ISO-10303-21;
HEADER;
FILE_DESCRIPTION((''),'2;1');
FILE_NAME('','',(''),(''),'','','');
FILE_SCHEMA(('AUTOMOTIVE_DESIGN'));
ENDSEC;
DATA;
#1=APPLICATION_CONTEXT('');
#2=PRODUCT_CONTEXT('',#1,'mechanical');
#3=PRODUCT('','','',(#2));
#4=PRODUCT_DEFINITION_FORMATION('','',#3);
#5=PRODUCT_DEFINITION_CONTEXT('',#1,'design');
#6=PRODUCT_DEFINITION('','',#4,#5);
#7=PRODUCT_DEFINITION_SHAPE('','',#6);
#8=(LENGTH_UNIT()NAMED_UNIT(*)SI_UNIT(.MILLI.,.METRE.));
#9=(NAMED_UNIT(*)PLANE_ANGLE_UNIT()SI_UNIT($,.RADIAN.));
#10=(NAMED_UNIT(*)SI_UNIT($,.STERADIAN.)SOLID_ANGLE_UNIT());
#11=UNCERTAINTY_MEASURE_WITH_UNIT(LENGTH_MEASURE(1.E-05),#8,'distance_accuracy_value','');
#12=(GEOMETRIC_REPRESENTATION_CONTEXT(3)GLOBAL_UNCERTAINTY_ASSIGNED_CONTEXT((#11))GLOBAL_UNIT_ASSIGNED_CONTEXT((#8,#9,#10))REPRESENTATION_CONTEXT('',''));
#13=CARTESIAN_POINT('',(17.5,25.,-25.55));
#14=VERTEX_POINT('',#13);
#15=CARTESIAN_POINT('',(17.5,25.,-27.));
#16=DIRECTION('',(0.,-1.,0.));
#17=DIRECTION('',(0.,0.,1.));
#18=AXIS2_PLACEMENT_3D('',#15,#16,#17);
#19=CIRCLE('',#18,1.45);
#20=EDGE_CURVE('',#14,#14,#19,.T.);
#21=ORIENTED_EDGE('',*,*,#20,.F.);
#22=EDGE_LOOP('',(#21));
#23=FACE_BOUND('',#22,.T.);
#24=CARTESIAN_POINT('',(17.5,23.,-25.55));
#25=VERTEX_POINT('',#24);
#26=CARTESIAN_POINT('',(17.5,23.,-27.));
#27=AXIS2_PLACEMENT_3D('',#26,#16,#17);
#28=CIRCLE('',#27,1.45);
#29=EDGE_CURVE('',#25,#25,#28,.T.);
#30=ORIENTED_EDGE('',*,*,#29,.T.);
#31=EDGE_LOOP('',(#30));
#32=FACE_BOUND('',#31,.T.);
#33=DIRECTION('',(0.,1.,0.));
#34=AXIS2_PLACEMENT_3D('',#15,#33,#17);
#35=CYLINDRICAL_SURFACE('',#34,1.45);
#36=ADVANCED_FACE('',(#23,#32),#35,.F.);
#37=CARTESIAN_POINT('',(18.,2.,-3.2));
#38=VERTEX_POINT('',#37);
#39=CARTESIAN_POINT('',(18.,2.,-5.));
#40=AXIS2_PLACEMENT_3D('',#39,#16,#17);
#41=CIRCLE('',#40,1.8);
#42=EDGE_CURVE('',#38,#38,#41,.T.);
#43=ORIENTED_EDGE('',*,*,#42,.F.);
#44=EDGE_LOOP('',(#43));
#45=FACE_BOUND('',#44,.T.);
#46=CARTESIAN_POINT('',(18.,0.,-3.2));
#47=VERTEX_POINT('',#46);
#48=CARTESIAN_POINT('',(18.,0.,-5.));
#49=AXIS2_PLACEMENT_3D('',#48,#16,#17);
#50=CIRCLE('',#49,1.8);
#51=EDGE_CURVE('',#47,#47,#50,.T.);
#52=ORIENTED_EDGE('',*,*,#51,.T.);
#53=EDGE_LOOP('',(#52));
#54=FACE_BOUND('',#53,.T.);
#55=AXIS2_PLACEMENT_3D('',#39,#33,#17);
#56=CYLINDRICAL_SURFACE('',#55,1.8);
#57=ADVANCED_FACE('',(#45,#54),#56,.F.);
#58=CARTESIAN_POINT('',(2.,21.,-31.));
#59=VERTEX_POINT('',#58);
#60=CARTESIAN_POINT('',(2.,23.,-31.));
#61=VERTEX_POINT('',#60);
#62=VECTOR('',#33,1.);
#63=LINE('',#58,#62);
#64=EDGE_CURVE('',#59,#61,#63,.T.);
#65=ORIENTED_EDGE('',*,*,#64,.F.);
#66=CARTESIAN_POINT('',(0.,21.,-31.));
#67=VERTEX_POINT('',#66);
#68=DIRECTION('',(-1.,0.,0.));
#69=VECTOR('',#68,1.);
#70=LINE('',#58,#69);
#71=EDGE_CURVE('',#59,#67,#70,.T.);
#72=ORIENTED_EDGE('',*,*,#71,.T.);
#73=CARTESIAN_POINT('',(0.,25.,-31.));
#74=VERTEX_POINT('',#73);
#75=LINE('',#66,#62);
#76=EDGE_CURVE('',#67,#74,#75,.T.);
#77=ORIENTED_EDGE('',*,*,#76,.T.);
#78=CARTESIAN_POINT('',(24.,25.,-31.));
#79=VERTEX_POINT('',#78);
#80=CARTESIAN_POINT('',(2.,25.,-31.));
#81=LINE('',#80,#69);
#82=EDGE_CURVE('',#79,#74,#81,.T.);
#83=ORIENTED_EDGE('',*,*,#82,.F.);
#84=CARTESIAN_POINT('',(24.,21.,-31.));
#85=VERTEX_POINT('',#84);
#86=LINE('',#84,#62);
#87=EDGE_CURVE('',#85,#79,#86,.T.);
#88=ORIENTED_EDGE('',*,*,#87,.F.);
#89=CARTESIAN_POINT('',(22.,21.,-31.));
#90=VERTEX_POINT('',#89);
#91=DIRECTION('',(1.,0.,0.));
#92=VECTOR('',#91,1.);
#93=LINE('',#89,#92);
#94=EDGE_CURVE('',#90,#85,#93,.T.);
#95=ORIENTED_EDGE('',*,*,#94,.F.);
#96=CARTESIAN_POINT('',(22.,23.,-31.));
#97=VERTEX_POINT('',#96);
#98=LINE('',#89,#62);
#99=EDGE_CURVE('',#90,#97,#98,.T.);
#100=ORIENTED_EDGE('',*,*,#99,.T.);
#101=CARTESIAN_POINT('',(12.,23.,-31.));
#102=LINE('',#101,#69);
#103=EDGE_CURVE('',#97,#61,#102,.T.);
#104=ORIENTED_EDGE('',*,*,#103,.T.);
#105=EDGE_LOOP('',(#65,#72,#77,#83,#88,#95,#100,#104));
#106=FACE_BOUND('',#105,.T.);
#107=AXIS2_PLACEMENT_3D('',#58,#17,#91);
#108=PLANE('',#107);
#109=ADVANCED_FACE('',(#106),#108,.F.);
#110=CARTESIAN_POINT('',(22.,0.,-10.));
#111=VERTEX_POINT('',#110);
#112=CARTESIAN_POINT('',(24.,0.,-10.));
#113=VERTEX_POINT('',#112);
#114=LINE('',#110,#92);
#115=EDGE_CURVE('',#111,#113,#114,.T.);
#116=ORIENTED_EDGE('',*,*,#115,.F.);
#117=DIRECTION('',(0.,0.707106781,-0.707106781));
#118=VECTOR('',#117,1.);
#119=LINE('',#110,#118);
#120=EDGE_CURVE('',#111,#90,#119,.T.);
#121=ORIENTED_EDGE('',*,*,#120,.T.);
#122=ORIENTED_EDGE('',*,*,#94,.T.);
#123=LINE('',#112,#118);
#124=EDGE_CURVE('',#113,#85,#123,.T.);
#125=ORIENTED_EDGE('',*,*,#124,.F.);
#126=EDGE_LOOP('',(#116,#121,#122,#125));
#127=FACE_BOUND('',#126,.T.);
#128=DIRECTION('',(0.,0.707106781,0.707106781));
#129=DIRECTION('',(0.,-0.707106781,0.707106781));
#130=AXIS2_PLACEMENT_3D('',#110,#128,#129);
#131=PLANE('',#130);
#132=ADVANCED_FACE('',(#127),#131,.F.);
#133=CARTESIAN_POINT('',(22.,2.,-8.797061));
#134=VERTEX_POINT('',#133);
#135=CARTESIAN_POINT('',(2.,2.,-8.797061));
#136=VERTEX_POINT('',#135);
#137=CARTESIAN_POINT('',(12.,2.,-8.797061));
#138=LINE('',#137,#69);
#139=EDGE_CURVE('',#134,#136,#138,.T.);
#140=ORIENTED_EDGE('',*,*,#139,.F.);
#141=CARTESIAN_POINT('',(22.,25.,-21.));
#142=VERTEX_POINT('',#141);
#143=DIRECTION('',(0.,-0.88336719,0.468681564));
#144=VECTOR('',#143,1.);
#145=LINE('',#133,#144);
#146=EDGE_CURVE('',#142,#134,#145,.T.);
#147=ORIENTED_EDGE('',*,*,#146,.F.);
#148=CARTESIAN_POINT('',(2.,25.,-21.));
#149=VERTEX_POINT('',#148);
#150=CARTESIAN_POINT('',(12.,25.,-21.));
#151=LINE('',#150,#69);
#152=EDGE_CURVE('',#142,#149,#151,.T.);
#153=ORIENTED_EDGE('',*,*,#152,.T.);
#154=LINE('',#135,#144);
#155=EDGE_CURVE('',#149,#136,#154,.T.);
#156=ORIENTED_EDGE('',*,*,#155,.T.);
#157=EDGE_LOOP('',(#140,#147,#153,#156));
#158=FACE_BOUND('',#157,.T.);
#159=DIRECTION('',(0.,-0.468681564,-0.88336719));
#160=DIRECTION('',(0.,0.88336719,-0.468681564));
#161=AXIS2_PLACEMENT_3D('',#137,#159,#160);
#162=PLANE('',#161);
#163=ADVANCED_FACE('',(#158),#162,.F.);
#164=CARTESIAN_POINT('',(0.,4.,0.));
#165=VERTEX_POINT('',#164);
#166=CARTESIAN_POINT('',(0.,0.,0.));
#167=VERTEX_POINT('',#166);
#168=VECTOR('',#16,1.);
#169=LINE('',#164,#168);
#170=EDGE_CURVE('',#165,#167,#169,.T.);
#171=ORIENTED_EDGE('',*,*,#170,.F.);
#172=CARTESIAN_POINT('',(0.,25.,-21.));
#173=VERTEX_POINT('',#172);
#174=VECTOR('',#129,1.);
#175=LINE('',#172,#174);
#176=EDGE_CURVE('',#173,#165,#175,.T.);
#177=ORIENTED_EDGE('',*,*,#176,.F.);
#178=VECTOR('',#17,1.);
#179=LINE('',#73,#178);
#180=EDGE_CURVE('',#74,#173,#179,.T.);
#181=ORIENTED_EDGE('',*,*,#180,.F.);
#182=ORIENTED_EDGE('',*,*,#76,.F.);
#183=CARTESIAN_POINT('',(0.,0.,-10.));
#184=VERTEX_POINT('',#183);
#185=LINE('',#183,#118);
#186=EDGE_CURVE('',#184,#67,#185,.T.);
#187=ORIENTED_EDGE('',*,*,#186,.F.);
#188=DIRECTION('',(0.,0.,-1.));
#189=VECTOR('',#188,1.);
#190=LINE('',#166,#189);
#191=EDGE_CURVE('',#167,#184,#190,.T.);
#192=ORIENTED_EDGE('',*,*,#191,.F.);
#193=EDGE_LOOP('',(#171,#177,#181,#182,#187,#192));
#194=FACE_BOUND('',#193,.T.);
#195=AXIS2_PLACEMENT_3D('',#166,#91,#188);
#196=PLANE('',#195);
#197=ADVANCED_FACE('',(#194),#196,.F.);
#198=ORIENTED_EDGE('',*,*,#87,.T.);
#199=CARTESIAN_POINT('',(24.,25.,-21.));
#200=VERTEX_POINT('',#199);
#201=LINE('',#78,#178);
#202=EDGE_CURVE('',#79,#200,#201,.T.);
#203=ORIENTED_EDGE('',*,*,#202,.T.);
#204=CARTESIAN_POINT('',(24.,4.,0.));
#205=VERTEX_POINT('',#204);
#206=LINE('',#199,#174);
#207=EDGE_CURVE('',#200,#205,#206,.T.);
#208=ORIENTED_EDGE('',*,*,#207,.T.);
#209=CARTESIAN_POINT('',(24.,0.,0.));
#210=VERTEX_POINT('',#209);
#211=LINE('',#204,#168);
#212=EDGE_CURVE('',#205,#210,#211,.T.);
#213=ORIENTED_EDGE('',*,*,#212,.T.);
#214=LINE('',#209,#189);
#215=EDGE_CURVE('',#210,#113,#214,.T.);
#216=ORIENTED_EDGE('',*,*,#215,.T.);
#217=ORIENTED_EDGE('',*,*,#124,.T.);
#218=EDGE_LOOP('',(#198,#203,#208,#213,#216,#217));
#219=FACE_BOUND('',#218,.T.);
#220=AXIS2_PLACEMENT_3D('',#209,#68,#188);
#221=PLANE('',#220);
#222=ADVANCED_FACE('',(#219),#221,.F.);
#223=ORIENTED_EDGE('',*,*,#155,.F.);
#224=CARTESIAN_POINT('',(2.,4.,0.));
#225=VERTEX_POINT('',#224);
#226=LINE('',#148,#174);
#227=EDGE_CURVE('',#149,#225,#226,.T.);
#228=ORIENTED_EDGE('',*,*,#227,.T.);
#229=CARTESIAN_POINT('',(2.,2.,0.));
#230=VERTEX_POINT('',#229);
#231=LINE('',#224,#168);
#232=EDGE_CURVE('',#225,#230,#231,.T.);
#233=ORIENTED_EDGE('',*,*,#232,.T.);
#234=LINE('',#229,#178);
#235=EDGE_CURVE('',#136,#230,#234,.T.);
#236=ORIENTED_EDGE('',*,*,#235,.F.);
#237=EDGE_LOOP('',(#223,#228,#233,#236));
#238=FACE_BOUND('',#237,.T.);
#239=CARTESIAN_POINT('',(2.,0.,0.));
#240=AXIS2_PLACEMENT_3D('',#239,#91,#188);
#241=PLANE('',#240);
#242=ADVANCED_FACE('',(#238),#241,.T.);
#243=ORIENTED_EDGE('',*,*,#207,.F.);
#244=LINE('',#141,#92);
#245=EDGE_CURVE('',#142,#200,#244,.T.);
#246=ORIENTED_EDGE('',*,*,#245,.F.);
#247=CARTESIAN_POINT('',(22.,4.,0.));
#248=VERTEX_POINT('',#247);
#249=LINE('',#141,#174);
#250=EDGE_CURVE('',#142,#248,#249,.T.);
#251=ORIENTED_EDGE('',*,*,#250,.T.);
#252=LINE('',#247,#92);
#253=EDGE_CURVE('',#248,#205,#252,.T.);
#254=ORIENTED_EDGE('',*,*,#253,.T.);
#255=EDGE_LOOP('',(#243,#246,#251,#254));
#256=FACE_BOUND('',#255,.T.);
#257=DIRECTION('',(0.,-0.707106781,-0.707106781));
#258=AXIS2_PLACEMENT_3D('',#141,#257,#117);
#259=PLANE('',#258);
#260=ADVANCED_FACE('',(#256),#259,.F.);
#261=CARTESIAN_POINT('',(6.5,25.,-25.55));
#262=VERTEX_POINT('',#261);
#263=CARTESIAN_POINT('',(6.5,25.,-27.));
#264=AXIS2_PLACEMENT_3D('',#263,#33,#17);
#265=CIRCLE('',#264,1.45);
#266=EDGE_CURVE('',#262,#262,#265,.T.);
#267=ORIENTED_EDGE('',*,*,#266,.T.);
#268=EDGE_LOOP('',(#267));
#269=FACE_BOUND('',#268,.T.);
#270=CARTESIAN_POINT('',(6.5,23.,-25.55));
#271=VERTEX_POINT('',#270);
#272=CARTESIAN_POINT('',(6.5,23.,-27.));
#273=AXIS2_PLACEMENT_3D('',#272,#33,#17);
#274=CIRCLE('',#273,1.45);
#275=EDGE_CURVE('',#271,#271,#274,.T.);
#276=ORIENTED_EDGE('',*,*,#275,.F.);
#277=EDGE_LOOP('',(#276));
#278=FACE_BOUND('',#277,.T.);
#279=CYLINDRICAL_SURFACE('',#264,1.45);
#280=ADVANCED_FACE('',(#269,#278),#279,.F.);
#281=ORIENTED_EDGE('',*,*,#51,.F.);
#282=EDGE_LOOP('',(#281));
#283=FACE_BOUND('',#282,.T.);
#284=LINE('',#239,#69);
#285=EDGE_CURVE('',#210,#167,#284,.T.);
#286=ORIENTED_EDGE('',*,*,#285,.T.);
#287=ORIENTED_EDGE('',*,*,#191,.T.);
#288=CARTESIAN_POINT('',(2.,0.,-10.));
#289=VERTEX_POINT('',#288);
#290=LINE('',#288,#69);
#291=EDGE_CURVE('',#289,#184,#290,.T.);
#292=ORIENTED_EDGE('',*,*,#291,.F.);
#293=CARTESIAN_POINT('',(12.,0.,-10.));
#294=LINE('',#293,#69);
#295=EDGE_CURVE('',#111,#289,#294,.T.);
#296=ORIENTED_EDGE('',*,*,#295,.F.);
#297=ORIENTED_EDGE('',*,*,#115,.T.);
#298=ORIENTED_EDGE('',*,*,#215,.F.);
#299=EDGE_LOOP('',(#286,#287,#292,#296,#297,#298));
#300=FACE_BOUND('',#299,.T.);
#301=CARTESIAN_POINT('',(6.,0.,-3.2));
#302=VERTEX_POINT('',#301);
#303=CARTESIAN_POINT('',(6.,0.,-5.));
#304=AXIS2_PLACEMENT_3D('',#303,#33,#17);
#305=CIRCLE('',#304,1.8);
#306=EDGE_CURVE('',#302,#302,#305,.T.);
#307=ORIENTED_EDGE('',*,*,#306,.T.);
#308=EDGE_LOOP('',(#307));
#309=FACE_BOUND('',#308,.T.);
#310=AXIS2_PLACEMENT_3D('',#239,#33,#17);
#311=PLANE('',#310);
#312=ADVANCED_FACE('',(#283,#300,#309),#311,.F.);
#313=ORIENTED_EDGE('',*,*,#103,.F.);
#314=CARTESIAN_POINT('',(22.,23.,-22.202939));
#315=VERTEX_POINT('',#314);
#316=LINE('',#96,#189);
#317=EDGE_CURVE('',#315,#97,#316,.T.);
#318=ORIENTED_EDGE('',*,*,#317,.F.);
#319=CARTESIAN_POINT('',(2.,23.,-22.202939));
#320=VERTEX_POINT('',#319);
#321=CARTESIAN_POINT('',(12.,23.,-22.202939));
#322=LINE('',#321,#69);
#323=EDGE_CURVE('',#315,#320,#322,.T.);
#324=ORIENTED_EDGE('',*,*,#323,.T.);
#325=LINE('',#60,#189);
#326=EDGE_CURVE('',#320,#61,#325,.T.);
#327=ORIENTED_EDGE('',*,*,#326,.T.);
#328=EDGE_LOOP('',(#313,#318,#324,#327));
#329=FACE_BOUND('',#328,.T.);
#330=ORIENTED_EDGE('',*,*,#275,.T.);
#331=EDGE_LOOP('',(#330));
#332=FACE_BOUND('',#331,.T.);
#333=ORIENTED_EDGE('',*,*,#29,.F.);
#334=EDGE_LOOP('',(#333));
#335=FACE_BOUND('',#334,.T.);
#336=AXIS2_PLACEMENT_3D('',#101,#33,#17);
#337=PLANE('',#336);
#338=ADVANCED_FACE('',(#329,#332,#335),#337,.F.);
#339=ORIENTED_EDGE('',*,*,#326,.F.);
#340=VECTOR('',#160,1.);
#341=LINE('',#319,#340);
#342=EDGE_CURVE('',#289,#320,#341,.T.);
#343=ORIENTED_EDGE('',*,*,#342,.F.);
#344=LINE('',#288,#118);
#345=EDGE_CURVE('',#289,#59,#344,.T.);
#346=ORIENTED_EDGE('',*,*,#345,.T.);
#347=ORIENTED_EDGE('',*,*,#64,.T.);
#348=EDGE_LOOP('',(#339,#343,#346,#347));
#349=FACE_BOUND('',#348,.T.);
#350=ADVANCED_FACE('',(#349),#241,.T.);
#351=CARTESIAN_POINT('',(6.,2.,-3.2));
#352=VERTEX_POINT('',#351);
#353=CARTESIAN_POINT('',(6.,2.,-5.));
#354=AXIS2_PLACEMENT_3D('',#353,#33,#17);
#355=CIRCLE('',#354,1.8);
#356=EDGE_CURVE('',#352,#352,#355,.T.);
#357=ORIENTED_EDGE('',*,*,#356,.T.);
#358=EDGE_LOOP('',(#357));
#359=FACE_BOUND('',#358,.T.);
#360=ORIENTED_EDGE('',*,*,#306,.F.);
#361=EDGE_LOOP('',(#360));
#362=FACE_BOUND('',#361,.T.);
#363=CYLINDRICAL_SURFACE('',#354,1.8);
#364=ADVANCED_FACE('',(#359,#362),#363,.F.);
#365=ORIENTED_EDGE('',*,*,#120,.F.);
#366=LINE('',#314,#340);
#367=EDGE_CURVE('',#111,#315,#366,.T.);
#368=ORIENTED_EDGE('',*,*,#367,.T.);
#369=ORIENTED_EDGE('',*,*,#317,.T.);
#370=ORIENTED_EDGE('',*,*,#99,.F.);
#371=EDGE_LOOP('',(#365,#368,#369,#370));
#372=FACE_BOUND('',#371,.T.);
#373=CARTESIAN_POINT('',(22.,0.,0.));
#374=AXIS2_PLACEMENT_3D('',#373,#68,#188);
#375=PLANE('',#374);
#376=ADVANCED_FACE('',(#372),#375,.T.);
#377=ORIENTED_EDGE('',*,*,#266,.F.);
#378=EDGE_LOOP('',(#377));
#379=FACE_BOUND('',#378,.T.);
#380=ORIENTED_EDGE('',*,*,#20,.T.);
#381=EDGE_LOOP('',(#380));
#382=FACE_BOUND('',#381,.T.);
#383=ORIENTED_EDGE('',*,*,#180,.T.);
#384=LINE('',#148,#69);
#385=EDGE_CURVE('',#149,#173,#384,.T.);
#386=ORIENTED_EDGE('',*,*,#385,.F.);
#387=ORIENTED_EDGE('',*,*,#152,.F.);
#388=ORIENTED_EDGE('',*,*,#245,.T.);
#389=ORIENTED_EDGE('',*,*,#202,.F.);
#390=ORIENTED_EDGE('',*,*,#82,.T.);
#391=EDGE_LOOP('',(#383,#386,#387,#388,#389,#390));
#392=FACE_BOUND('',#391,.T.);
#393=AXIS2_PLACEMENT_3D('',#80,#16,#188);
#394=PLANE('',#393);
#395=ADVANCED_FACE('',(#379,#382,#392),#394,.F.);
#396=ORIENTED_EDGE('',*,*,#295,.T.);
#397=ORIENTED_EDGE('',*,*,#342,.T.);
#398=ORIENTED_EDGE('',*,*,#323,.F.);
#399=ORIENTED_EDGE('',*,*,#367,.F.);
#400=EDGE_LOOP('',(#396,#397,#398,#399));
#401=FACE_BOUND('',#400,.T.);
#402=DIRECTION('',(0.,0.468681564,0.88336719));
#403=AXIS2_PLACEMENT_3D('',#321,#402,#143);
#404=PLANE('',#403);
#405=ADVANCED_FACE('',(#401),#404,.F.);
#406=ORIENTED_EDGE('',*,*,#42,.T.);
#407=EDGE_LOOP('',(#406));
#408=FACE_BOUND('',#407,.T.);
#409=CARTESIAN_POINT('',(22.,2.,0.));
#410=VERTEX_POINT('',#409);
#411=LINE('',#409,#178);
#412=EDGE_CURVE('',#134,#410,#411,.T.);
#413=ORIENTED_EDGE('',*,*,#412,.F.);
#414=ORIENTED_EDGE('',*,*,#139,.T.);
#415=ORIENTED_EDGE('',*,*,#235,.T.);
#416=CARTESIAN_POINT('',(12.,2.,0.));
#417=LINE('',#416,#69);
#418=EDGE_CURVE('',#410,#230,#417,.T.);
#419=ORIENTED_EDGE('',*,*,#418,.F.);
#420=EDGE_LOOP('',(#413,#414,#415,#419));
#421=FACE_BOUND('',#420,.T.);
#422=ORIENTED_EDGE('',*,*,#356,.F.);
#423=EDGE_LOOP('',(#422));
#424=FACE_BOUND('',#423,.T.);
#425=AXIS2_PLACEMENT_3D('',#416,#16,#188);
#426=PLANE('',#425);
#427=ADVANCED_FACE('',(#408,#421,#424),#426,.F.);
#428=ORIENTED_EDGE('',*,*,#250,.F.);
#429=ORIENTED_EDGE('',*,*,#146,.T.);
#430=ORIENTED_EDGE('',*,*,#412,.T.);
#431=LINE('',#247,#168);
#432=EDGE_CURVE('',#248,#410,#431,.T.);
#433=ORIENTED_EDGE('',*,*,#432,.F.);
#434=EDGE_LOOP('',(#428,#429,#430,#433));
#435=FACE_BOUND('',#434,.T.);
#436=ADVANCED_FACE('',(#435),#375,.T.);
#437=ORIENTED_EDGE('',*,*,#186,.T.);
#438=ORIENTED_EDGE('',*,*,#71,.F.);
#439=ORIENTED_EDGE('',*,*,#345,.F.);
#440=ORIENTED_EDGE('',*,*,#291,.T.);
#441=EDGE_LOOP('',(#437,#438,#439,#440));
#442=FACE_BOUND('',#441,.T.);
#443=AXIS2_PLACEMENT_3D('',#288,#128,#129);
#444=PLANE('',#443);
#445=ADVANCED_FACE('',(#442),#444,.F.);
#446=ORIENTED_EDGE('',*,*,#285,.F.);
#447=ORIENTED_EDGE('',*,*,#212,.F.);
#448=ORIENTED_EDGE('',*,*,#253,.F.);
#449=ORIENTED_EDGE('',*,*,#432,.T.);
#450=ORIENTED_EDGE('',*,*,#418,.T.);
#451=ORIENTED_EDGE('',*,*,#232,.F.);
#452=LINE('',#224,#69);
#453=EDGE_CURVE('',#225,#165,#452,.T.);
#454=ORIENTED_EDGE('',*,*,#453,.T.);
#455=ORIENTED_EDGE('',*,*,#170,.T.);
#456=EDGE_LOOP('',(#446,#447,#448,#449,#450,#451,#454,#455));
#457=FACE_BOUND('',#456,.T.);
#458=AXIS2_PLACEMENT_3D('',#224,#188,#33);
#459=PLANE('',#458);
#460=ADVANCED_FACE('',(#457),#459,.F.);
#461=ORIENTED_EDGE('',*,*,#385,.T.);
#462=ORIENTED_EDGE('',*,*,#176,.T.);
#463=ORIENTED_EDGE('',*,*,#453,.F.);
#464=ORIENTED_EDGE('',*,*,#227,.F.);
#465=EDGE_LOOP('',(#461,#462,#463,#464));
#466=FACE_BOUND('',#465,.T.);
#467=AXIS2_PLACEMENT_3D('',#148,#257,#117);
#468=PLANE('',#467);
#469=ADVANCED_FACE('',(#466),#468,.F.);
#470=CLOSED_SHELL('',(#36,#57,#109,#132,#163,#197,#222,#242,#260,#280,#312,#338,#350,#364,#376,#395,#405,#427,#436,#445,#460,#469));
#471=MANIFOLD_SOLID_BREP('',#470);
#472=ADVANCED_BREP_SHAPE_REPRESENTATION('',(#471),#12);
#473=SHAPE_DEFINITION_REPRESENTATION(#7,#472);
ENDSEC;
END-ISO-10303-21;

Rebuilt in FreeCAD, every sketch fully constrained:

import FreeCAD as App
import Part
import Sketcher
from FreeCAD import Vector
Q = App.Units.Quantity


def add_polygon(sketch, points):
    """Adds a closed chain of lines whose ends are joined by coincident constraints."""
    first, n = sketch.GeometryCount, len(points)
    for a, b in zip(points, points[1:] + points[:1]):
        sketch.addGeometry(Part.LineSegment(App.Vector(*a, 0), App.Vector(*b, 0)), False)
    for i in range(n):
        sketch.addConstraint(Sketcher.Constraint("Coincident", first + i, 2, first + (i + 1) % n, 1))

doc = App.newDocument("Part")
body = doc.addObject("PartDesign::Body", "Body")

sketch1 = body.newObject("Sketcher::SketchObject", "Sketch")
sketch1.AttachmentSupport = (doc.getObject("YZ_Plane"), [""])
sketch1.MapMode = "FlatFace"
add_polygon(sketch1, [(0, 0), (0, -10), (21, -31), (25, -31), (25, -21), (4, 0)])
sketch1.addConstraint(Sketcher.Constraint("Vertical", 0))
sketch1.addConstraint(Sketcher.Constraint("Horizontal", 2))
sketch1.addConstraint(Sketcher.Constraint("Vertical", 3))
sketch1.addConstraint(Sketcher.Constraint("Horizontal", 5))
sketch1.addConstraint(Sketcher.Constraint("Coincident", 5, 2, -1, 1))
sketch1.addConstraint(Sketcher.Constraint("Parallel", 1, 4))
sketch1.addConstraint(Sketcher.Constraint("Equal", 2, 5))
sketch1.addConstraint(Sketcher.Constraint("DistanceX", 2, 1, 2, 2, Q("4 mm")))
sketch1.addConstraint(Sketcher.Constraint("DistanceY", 0, 2, 0, 1, Q("10 mm")))
sketch1.addConstraint(Sketcher.Constraint("Angle", 1, Q("-45 deg")))
sketch1.addConstraint(Sketcher.Constraint("DistanceX", -1, 1, 1, 2, Q("21 mm")))
pad1 = body.newObject("PartDesign::Pad", "Pad")
pad1.Profile = sketch1
pad1.Length = 2

sketch2 = body.newObject("Sketcher::SketchObject", "Sketch001")
sketch2.AttachmentSupport = (doc.getObject("YZ_Plane"), [""])
sketch2.MapMode = "FlatFace"
sketch2.AttachmentOffset = App.Placement(Vector(0, 0, 2), App.Rotation())
add_polygon(sketch2, [(0, 0), (0, -10), (23, -22.202939), (23, -31), (25, -31), (25, -21), (2, -8.797061), (2, 0)])
sketch2.addConstraint(Sketcher.Constraint("Vertical", 0))
sketch2.addConstraint(Sketcher.Constraint("Vertical", 2))
sketch2.addConstraint(Sketcher.Constraint("Horizontal", 3))
sketch2.addConstraint(Sketcher.Constraint("Vertical", 4))
sketch2.addConstraint(Sketcher.Constraint("Vertical", 6))
sketch2.addConstraint(Sketcher.Constraint("Horizontal", 7))
sketch2.addConstraint(Sketcher.Constraint("Coincident", 7, 2, -1, 1))
sketch2.addConstraint(Sketcher.Constraint("Parallel", 1, 5))
sketch2.addConstraint(Sketcher.Constraint("Equal", 3, 7))
sketch2.addConstraint(Sketcher.Constraint("Equal", 0, 4))
sketch2.addConstraint(Sketcher.Constraint("DistanceX", 3, 1, 3, 2, Q("2 mm")))
sketch2.addConstraint(Sketcher.Constraint("DistanceY", 0, 2, 0, 1, Q("10 mm")))
sketch2.addConstraint(Sketcher.Constraint("DistanceX", -1, 1, 1, 2, Q("23 mm")))
sketch2.addConstraint(Sketcher.Constraint("DistanceY", 2, 2, -1, 1, Q("31 mm")))
sketch2.addConstraint(Sketcher.Constraint("DistanceY", 2, 2, 2, 1, Q("8.797061 mm")))
pad2 = body.newObject("PartDesign::Pad", "Pad001")
pad2.Profile = sketch2
pad2.Length = 10

sketch3 = body.newObject("Sketcher::SketchObject", "Sketch002")
sketch3.AttachmentSupport = (doc.getObject("XZ_Plane"), [""])
sketch3.MapMode = "FlatFace"
sketch3.AttachmentOffset = App.Placement(Vector(0, 0, -2), App.Rotation())
sketch3.addGeometry(Part.Circle(Vector(6, -5, 0), Vector(0, 0, 1), 1.8), False)
sketch3.addConstraint(Sketcher.Constraint("Diameter", 0, Q("3.6 mm")))
sketch3.addConstraint(Sketcher.Constraint("DistanceX", -1, 1, 0, 3, Q("6 mm")))
sketch3.addConstraint(Sketcher.Constraint("DistanceY", 0, 3, -1, 1, Q("5 mm")))
doc.recompute()
hole = body.newObject("PartDesign::Hole", "Hole")
hole.Profile = sketch3
hole.ThreadType = "None"
hole.Diameter = 3.6
hole.DepthType = "ThroughAll"
hole.Reversed = True

sketch4 = body.newObject("Sketcher::SketchObject", "Sketch003")
sketch4.AttachmentSupport = (doc.getObject("XZ_Plane"), [""])
sketch4.MapMode = "FlatFace"
sketch4.AttachmentOffset = App.Placement(Vector(0, 0, -25), App.Rotation())
sketch4.addGeometry(Part.Circle(Vector(6.5, -27, 0), Vector(0, 0, 1), 1.45), False)
sketch4.addConstraint(Sketcher.Constraint("Diameter", 0, Q("2.9 mm")))
sketch4.addConstraint(Sketcher.Constraint("DistanceY", 0, 3, -1, 1, Q("27 mm")))
sketch4.addConstraint(Sketcher.Constraint("DistanceX", -1, 1, 0, 3, Q("6.5 mm")))
doc.recompute()
hole2 = body.newObject("PartDesign::Hole", "Hole001")
hole2.Profile = sketch4
hole2.ThreadType = "None"
hole2.Diameter = 2.9
hole2.DepthType = "ThroughAll"
hole2.Reversed = True
body2 = doc.addObject("PartDesign::Body", "Body001")
doc.recompute()

body2.BaseFeature = body
doc.recompute()

mirroring = doc.addObject("Part::Mirroring", "Mirroring")
mirroring.Source = body
mirroring.Base = Vector(12, 0, 0)
mirroring.Normal = Vector(-1, 0, 0)
body3 = doc.addObject("PartDesign::Body", "Body002")
body3.BaseFeature = mirroring
boolean = body2.newObject("PartDesign::Boolean", "Boolean")
boolean.Type = "Fuse"
boolean.addObjects([body3])
doc.recompute()
mirroring.Visibility = False

doc.recompute()
